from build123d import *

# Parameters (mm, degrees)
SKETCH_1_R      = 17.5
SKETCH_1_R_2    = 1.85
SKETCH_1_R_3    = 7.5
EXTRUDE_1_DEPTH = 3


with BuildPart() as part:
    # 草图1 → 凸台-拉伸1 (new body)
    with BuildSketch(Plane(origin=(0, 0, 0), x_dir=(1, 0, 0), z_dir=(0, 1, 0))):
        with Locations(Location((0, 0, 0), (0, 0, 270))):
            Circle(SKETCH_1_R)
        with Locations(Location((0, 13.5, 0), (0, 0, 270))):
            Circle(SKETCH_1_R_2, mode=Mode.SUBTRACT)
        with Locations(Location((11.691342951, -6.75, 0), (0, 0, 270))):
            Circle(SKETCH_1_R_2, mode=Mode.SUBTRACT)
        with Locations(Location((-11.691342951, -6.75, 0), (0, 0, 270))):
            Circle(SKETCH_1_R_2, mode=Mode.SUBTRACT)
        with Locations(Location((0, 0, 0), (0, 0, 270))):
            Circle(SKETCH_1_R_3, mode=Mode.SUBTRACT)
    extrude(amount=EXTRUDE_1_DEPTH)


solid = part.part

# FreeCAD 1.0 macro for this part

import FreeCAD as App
import Part
import Sketcher
from FreeCAD import Vector

doc = App.newDocument("Part")
body = doc.addObject("PartDesign::Body", "Body")

sketch1 = body.newObject("Sketcher::SketchObject", "Sketch")
sketch1.AttachmentSupport = (doc.getObject("XZ_Plane"), [""])
sketch1.MapMode = "FlatFace"
sketch1.addGeometry([
    Part.Circle(Vector(0, 0, 0), Vector(0, 0, 1), 17.5),
    Part.Circle(Vector(0, -13.5, 0), Vector(0, 0, 1), 1.85),
    Part.Circle(Vector(-11.691343, 6.75, 0), Vector(0, 0, 1), 1.85),
    Part.Circle(Vector(0, 0, 0), Vector(0, 0, 1), 7.5),
    Part.Circle(Vector(11.691343, 6.75, 0), Vector(0, 0, 1), 1.85),
], False)
sketch1.addConstraint([
    Sketcher.Constraint("Coincident", 0, 3, -1, 1),
    Sketcher.Constraint("Coincident", 3, 3, -1, 1),
    Sketcher.Constraint("Equal", 1, 2),
    Sketcher.Constraint("Equal", 2, 4),
    Sketcher.Constraint("Symmetric", 2, 3, 4, 3, -2),
    Sketcher.Constraint("PointOnObject", 1, 3, -2),
    Sketcher.Constraint("Diameter", 0, 35.0),
    Sketcher.Constraint("Diameter", 3, 15.0),
    Sketcher.Constraint("Diameter", 1, 3.7),
    Sketcher.Constraint("DistanceY", 1, 3, -1, 1, 13.5),
    Sketcher.Constraint("DistanceY", -1, 1, 2, 3, 6.75),
    Sketcher.Constraint("DistanceX", 2, 3, -1, 1, 11.691343),
])
pad1 = body.newObject("PartDesign::Pad", "Pad")
pad1.Profile = sketch1
pad1.Length = 3
pad1.Reversed = True

doc.recompute()
